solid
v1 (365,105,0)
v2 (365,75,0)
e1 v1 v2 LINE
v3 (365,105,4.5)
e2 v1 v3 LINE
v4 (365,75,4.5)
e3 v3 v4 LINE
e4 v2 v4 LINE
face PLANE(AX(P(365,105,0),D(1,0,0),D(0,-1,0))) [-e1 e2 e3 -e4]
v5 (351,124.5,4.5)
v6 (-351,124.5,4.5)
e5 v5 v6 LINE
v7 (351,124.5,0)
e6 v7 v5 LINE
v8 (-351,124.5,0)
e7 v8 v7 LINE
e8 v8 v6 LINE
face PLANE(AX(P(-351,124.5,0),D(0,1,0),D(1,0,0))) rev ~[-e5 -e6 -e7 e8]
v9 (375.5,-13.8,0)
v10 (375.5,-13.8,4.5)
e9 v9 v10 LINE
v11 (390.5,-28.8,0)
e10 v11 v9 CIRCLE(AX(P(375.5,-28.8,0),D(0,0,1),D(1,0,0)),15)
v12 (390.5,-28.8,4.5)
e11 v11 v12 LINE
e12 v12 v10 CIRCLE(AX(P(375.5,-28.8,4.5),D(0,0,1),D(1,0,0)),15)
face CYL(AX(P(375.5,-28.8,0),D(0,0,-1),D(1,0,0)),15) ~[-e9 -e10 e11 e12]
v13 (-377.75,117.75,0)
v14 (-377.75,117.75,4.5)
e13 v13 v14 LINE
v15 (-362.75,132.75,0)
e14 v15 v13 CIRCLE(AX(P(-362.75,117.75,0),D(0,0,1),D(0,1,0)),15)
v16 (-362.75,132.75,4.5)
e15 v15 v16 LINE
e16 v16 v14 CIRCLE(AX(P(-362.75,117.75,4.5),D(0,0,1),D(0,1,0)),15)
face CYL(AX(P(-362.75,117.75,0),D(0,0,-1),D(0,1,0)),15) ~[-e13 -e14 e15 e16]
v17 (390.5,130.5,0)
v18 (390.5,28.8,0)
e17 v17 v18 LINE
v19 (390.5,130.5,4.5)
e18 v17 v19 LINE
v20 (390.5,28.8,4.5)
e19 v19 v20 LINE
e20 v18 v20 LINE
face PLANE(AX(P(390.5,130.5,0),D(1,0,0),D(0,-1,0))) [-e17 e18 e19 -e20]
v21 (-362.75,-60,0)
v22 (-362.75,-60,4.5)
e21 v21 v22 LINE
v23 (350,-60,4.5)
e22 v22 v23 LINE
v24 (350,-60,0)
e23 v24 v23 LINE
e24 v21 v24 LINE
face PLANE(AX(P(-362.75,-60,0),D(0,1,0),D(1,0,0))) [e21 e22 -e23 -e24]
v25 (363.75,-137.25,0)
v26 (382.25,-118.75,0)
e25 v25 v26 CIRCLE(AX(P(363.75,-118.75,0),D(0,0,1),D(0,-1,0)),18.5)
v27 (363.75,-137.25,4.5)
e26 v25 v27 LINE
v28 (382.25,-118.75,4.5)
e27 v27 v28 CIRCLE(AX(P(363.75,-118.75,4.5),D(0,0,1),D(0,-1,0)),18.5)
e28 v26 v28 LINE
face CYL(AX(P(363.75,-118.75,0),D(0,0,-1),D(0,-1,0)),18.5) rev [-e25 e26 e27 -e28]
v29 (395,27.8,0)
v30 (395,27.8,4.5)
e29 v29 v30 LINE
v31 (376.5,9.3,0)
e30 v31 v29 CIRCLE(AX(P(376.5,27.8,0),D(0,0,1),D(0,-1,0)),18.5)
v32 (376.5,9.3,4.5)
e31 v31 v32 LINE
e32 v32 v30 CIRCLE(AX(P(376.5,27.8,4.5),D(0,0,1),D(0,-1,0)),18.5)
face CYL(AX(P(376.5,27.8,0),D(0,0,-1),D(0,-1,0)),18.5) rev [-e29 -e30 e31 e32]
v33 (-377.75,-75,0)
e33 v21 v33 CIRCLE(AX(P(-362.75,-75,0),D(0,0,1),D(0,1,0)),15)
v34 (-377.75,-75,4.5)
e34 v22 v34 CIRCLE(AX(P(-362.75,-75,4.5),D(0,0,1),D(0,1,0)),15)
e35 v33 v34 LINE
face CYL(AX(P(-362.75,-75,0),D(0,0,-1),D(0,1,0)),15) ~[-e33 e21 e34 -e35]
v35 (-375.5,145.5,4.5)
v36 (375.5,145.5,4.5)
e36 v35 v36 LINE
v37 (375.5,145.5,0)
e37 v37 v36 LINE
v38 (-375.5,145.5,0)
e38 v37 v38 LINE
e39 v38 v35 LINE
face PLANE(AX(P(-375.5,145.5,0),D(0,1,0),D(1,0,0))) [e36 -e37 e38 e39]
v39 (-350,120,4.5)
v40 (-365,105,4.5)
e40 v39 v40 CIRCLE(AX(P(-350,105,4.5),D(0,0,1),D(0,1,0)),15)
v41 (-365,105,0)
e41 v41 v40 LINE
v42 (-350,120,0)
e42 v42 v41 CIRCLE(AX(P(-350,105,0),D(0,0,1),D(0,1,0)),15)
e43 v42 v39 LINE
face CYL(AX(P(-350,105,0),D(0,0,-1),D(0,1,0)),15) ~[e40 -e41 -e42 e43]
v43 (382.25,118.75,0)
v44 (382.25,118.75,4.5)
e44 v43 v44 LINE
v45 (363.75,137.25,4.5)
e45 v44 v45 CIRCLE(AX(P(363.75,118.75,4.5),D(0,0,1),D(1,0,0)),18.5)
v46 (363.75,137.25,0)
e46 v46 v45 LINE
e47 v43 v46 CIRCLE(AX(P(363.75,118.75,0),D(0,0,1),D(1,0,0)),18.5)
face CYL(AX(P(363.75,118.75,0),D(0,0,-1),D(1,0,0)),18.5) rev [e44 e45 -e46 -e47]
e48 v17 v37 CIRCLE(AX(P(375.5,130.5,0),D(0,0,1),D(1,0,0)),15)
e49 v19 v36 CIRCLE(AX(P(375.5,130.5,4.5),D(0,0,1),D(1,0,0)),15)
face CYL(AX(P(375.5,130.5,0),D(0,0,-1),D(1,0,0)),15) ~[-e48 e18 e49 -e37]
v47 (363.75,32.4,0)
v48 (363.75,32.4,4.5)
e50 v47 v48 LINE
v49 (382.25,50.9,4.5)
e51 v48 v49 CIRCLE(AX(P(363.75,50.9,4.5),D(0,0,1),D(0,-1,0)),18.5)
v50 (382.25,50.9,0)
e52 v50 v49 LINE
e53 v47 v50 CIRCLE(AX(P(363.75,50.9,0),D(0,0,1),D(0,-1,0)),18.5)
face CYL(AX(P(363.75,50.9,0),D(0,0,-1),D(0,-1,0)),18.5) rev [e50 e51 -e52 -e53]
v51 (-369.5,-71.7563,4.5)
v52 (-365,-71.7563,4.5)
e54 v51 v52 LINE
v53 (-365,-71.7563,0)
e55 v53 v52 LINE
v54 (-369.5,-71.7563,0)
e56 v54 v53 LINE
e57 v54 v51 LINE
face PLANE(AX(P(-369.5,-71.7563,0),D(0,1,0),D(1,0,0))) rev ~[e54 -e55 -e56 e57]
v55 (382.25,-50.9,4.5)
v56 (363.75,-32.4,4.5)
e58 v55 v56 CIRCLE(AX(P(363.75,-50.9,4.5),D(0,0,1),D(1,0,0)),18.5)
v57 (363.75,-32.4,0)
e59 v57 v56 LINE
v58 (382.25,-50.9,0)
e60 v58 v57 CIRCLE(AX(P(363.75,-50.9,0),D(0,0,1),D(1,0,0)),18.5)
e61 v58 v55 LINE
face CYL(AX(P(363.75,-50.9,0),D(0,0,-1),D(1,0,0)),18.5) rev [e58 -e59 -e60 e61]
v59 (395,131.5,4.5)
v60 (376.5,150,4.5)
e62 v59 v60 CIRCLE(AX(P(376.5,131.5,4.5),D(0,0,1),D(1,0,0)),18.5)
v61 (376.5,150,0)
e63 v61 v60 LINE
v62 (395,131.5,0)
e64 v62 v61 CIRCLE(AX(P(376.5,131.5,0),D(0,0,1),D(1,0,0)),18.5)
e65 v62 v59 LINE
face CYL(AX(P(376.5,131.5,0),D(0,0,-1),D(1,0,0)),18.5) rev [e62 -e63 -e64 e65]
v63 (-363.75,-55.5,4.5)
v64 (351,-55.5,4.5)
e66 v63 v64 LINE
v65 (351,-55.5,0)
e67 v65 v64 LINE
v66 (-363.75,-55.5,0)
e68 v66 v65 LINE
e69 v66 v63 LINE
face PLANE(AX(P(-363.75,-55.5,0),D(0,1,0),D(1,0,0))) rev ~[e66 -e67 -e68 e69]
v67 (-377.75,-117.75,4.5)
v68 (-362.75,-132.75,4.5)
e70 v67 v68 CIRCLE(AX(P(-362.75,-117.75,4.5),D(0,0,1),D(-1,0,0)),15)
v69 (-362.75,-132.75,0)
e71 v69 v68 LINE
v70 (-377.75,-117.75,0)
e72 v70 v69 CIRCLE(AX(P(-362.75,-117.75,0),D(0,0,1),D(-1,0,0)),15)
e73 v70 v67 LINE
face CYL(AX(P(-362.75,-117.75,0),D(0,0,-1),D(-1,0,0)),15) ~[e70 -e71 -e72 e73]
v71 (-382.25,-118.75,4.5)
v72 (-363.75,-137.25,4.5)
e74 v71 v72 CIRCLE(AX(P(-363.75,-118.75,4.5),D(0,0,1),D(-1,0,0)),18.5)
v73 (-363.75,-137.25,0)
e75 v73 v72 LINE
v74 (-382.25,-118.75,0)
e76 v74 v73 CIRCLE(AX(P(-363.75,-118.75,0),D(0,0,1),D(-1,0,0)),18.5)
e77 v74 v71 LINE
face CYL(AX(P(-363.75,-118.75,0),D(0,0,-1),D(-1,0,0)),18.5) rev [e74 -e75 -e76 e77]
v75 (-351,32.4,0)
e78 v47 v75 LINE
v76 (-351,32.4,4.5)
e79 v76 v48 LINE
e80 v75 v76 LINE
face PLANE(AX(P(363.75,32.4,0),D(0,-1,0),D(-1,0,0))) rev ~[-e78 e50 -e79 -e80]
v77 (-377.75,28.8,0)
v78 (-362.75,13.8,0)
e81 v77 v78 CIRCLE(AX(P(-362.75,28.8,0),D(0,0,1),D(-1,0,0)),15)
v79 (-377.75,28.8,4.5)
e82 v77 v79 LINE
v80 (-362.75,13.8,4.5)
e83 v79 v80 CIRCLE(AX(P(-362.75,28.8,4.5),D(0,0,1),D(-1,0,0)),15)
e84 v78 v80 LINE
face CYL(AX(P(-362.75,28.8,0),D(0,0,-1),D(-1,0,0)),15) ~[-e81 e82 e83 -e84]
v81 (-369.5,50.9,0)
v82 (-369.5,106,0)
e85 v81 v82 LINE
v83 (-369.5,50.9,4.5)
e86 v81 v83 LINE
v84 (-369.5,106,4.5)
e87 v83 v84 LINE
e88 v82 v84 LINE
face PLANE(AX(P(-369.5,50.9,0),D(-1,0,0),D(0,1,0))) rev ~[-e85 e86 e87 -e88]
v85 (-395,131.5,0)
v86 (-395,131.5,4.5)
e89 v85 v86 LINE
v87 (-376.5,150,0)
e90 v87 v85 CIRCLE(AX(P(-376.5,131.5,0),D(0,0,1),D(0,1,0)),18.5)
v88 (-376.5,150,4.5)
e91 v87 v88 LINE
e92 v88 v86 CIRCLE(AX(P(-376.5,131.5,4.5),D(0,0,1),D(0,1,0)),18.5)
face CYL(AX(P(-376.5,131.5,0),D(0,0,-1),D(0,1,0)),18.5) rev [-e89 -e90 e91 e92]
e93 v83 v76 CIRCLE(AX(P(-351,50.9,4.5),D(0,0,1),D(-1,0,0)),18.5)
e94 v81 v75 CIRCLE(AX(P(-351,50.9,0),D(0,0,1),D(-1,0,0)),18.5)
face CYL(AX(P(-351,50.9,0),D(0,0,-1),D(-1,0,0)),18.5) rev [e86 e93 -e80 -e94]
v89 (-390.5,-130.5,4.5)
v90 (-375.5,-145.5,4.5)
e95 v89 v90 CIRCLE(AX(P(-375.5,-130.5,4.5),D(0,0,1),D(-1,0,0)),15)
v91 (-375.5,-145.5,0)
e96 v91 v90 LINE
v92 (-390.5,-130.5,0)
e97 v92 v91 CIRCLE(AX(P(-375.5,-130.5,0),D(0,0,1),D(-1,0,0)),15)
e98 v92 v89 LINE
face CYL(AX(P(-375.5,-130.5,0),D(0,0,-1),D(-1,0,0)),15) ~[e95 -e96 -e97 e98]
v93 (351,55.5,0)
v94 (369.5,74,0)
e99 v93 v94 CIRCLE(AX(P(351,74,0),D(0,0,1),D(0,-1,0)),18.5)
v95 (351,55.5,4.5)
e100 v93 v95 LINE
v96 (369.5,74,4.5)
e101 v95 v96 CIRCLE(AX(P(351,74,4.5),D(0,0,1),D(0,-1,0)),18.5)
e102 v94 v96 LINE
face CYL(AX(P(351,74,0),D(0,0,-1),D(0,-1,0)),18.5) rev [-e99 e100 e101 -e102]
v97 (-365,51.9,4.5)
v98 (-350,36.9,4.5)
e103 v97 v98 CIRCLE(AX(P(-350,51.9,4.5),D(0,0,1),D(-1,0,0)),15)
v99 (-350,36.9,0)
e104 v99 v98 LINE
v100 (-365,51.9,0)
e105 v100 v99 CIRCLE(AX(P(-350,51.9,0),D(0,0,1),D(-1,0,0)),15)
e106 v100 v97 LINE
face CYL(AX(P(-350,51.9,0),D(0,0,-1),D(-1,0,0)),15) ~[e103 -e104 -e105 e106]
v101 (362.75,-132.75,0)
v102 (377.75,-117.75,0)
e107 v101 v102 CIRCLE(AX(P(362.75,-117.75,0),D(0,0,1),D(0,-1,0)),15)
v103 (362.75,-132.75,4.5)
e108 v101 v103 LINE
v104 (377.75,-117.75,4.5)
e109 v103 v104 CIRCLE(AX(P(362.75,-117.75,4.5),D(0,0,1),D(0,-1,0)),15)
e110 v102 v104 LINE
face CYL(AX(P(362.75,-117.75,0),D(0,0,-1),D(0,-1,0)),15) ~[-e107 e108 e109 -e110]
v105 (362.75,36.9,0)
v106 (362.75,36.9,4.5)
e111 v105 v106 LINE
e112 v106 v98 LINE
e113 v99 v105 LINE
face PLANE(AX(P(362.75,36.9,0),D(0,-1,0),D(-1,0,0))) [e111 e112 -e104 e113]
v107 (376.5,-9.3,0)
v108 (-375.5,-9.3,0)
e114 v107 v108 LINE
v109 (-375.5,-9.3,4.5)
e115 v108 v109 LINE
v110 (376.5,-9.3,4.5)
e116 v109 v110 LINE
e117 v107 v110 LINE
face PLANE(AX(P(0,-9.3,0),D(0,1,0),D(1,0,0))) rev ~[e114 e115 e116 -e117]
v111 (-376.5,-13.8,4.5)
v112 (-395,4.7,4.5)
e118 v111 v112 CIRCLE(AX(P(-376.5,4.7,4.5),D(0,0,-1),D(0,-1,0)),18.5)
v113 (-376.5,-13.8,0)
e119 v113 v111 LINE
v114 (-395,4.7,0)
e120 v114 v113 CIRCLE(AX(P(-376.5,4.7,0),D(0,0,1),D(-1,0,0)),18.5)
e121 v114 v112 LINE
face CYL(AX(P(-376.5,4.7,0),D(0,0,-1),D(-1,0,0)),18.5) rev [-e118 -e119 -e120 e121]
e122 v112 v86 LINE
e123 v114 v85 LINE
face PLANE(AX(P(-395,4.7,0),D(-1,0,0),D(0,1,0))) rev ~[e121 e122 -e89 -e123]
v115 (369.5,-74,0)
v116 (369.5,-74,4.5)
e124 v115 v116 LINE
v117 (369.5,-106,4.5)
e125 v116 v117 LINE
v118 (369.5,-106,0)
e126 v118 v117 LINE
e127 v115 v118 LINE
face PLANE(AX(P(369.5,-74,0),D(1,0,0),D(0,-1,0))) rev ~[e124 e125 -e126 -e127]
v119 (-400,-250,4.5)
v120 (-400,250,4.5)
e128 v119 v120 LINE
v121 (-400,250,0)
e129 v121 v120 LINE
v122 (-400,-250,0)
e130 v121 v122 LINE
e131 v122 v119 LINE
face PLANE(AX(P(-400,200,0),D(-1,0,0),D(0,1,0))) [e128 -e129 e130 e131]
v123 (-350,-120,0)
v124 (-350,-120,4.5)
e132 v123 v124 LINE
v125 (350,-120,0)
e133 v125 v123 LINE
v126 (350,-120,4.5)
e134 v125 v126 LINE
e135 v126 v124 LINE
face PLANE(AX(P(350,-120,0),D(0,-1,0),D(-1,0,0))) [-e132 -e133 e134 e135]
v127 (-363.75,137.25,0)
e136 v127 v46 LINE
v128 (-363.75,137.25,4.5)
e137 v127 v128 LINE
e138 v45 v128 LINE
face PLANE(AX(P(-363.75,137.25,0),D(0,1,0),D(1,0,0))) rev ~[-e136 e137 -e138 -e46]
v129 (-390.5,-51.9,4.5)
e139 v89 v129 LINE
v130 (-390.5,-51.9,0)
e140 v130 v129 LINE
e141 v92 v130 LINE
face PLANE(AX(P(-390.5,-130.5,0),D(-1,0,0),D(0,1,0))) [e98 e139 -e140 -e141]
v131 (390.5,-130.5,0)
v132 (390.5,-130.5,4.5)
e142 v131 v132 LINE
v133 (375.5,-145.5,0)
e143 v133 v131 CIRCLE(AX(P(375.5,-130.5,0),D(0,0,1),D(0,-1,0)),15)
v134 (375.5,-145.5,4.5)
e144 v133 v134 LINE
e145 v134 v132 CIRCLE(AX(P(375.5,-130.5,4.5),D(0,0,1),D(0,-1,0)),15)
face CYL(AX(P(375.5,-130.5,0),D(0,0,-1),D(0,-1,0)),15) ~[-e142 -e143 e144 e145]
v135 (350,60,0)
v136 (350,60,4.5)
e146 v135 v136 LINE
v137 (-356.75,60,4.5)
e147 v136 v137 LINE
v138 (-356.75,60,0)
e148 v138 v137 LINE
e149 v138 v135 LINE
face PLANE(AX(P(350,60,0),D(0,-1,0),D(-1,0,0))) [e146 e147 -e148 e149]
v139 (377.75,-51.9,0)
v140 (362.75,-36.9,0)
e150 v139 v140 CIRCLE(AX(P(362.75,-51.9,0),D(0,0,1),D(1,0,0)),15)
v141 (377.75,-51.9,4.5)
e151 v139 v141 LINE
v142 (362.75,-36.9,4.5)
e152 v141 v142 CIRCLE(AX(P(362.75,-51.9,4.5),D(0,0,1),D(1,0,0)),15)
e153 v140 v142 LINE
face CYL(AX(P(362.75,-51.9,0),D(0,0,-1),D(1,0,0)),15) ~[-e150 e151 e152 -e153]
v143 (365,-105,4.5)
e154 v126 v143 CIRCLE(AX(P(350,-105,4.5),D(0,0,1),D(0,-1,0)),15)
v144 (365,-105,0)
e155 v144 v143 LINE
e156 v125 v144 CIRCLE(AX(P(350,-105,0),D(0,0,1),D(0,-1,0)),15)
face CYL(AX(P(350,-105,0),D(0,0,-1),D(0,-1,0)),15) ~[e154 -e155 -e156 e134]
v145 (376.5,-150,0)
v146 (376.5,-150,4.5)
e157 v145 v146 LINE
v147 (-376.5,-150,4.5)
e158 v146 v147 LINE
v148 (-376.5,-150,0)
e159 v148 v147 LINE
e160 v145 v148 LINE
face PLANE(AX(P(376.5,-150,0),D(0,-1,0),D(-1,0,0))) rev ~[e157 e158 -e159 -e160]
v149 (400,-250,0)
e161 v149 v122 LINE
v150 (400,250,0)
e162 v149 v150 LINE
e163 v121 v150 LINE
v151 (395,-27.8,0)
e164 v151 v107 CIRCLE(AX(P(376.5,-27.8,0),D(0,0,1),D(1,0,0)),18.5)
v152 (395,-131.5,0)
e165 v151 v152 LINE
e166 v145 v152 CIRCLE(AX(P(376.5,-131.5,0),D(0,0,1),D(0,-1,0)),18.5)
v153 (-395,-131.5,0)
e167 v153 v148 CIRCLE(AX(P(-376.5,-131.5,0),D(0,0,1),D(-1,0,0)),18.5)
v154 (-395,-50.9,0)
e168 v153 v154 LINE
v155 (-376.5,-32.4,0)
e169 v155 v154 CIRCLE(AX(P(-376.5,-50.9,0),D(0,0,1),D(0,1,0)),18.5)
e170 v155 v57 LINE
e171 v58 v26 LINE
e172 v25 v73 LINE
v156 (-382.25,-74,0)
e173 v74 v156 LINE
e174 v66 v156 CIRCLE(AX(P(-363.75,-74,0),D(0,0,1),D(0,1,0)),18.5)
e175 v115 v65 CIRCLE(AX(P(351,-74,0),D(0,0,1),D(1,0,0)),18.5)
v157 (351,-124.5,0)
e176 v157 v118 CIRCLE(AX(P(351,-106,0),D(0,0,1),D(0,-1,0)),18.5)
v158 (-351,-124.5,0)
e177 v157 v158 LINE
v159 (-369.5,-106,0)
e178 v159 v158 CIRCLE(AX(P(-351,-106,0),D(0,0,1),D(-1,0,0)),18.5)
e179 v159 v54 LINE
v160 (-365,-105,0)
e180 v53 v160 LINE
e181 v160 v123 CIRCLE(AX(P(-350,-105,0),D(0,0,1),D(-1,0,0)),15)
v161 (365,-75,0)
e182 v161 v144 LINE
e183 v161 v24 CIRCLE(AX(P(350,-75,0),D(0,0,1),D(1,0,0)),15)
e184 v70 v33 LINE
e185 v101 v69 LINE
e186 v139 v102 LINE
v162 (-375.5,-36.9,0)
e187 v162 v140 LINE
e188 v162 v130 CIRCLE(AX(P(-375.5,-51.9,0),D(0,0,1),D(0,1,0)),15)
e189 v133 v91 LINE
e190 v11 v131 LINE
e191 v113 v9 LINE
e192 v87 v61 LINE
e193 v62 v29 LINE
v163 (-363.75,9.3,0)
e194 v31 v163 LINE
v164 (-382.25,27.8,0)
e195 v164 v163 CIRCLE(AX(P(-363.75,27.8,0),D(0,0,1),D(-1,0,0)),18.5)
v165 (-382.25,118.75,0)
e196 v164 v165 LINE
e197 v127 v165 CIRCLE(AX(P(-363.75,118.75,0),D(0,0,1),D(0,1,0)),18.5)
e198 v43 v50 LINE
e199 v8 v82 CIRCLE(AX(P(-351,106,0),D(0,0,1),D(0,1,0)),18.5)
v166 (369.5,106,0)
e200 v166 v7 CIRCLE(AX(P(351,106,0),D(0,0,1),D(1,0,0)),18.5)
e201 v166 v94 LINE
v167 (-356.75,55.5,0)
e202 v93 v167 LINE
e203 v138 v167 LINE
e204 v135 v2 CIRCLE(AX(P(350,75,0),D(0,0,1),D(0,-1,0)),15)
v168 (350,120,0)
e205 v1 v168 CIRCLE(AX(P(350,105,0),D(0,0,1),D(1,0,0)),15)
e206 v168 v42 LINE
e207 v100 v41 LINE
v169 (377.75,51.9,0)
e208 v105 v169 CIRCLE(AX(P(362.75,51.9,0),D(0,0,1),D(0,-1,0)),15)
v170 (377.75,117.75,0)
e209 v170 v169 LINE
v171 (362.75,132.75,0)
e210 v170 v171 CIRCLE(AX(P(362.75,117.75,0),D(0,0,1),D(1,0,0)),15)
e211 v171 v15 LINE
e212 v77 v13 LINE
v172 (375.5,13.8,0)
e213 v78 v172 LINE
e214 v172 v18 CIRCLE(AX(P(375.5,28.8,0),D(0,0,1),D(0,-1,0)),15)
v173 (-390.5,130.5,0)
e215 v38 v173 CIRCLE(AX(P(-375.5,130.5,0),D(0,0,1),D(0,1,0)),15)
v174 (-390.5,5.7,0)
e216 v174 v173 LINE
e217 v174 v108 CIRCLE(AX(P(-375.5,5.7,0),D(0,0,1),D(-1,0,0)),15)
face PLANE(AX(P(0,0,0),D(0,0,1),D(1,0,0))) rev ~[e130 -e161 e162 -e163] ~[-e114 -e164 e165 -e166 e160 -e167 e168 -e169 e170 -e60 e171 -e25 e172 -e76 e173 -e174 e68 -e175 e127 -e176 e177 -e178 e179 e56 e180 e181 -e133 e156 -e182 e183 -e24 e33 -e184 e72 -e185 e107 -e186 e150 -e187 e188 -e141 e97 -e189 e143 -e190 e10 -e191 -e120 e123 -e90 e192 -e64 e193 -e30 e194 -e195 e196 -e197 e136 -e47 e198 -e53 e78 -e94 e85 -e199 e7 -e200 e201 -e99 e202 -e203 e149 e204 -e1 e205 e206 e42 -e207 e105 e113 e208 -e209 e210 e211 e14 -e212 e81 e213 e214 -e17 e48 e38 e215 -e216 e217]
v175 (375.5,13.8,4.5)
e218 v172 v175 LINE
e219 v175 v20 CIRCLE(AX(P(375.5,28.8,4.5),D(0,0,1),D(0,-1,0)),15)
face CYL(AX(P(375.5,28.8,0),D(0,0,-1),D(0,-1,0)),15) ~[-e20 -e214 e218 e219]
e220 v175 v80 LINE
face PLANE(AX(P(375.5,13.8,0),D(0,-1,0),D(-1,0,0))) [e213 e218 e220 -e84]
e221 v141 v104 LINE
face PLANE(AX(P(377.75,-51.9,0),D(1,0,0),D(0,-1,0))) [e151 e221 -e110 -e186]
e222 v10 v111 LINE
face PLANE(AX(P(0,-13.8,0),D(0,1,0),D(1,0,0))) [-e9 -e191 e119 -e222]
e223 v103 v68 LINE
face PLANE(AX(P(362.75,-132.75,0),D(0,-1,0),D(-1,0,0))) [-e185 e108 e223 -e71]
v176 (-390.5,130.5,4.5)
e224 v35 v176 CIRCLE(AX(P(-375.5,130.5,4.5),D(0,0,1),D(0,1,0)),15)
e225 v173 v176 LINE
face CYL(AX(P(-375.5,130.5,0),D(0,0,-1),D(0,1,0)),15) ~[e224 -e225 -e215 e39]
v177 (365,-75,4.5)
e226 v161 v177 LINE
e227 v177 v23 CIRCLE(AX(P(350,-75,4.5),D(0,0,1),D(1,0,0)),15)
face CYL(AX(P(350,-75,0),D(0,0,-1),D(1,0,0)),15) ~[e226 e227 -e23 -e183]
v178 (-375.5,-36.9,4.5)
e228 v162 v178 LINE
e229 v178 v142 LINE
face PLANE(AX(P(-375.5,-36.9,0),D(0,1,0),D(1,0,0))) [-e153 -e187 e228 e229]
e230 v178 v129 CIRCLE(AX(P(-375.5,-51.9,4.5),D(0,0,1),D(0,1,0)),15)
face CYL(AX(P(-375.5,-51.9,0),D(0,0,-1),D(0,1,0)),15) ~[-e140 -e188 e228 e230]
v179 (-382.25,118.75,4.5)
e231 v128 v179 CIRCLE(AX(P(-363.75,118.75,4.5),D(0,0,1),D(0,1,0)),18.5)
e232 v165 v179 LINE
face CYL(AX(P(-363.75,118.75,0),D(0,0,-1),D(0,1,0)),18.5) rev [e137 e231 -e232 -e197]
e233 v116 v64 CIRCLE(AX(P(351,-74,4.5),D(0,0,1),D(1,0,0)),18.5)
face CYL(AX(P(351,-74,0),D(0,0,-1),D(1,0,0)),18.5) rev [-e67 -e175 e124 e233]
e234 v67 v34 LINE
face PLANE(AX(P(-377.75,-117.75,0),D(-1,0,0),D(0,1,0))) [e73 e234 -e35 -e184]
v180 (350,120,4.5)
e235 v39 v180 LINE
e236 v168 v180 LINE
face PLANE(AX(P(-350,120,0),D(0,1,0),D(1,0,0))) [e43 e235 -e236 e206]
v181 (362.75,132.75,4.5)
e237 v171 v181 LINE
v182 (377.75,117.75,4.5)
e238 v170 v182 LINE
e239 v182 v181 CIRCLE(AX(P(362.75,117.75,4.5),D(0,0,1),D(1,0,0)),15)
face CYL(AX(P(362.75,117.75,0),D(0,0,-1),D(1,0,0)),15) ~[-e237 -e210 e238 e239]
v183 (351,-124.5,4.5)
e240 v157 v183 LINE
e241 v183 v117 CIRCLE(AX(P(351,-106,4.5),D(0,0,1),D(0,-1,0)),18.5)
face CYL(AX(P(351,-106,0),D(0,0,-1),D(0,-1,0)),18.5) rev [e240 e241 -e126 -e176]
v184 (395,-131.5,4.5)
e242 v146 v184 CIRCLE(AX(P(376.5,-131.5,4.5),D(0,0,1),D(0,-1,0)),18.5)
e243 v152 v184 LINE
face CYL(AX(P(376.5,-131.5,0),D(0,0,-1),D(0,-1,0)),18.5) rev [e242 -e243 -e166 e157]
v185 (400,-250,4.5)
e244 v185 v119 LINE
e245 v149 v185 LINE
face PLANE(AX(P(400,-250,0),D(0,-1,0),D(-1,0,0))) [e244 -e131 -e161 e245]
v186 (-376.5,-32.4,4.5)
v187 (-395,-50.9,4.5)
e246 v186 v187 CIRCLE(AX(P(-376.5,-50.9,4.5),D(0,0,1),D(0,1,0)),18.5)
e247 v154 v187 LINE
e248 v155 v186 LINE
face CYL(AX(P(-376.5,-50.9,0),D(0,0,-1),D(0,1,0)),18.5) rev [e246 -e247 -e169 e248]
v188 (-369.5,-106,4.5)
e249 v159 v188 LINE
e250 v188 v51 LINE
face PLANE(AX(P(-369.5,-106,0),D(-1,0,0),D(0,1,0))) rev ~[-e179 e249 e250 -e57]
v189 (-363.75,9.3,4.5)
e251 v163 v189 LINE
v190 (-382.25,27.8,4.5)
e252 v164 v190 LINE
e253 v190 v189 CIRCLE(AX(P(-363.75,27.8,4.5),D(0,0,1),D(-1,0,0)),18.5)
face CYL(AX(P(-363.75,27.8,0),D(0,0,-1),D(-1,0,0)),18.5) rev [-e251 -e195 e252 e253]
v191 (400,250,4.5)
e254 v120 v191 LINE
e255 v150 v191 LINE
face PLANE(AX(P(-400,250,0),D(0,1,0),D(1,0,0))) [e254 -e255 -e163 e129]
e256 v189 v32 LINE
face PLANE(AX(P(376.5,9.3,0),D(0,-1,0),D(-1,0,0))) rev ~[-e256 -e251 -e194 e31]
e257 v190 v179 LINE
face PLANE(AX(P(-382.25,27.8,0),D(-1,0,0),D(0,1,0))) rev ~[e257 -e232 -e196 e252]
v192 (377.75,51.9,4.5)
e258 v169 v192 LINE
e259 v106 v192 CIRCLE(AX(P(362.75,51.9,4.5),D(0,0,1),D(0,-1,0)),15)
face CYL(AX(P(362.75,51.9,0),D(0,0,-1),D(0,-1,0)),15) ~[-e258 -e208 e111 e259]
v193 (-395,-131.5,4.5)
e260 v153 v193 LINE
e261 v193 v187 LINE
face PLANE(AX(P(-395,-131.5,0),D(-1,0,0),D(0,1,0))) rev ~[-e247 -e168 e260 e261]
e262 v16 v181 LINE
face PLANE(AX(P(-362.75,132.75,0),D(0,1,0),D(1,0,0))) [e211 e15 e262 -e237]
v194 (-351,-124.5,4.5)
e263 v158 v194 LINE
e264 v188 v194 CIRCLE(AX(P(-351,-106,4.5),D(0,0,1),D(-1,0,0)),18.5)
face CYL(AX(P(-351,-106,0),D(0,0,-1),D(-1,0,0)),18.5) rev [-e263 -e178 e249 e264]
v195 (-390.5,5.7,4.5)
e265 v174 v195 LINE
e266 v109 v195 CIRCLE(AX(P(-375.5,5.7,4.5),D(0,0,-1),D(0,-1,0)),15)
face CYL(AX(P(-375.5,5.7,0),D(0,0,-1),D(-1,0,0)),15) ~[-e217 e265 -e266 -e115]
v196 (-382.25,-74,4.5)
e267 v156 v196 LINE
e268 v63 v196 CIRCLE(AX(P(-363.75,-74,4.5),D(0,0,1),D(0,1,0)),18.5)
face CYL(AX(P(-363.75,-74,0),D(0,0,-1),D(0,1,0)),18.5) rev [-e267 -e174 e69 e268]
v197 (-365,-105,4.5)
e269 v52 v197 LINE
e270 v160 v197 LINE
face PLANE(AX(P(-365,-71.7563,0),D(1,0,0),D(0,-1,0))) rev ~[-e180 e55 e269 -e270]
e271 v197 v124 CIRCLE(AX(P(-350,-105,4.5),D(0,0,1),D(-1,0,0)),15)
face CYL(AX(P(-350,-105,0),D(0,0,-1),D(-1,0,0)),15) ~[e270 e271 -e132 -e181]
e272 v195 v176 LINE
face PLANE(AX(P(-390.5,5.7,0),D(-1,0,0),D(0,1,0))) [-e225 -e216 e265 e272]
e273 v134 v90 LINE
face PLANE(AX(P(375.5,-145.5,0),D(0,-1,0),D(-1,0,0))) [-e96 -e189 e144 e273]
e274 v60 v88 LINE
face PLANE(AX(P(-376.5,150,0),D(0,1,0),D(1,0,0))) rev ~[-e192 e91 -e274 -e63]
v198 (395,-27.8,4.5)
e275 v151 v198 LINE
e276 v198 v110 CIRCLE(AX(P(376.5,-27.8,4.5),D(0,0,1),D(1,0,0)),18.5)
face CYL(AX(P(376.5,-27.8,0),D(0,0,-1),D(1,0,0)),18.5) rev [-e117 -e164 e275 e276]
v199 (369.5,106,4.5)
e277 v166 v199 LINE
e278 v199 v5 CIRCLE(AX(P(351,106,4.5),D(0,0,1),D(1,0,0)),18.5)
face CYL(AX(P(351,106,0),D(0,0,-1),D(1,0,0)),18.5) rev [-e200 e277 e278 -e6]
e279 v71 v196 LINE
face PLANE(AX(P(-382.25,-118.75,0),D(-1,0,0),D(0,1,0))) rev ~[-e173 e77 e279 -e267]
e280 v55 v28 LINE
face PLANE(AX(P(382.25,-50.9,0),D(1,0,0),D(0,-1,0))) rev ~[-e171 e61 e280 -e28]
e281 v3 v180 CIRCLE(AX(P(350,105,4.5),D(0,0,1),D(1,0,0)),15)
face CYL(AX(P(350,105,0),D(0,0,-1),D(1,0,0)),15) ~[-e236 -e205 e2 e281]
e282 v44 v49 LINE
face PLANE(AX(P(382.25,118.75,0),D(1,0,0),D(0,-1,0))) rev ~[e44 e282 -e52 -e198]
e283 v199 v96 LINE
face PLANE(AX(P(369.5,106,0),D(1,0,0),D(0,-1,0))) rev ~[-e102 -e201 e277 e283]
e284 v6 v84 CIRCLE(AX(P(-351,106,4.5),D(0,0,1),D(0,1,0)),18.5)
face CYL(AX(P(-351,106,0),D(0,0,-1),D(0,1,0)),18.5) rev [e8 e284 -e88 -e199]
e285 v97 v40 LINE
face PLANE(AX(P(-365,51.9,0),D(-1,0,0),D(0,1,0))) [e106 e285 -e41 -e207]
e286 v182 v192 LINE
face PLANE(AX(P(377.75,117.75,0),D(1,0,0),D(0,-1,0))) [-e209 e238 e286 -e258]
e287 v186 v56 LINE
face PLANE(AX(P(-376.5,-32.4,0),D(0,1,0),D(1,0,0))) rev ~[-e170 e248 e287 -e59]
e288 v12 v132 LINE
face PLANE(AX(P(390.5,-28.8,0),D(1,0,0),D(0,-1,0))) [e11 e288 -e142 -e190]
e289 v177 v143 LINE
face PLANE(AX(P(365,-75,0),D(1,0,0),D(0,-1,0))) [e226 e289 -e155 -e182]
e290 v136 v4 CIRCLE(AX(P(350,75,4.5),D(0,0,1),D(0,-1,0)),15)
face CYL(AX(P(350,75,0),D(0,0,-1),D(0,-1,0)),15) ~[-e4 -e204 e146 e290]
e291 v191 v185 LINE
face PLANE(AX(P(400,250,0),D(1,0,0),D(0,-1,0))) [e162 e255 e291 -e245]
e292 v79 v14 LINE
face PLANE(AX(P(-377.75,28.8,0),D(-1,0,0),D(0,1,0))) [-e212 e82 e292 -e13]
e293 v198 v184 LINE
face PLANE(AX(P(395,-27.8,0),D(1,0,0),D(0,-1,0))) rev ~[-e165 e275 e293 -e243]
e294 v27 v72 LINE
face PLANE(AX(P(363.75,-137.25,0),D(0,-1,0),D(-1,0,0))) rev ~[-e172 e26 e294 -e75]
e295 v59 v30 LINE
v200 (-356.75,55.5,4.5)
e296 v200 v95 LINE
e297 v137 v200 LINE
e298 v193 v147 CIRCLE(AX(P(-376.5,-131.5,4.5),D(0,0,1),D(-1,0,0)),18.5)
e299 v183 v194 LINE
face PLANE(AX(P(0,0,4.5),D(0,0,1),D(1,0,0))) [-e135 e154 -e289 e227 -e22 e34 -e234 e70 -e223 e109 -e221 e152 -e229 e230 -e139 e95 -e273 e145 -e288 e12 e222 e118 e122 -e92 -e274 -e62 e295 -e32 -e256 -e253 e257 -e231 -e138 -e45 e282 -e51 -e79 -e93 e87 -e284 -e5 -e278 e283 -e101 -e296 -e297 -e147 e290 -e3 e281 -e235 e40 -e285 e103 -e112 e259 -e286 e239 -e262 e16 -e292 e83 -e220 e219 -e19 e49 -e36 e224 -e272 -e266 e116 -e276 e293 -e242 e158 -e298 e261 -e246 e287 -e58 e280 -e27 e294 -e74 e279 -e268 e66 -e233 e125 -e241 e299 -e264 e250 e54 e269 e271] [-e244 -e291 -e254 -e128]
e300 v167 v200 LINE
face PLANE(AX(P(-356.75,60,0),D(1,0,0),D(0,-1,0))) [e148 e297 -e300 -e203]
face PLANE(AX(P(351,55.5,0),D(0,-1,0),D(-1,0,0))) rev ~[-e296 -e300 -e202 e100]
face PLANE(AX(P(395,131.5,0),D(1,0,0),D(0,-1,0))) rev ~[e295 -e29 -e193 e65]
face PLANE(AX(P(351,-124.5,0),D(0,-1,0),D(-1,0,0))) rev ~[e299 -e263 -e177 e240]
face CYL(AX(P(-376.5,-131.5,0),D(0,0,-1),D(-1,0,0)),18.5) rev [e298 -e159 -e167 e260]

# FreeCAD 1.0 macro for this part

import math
import FreeCAD as App
import Part
import Sketcher


def add_polygon(sketch, points):
    """Adds a closed chain of lines whose ends are joined by coincident constraints."""
    first, n = sketch.GeometryCount, len(points)
    for a, b in zip(points, points[1:] + points[:1]):
        sketch.addGeometry(Part.LineSegment(App.Vector(*a, 0), App.Vector(*b, 0)), False)
    for i in range(n):
        sketch.addConstraint(Sketcher.Constraint("Coincident", first + i, 2, first + (i + 1) % n, 1))

doc = App.newDocument("Part")
body = doc.addObject("PartDesign::Body", "Body")

# Sketch on XY plane
sketch1 = body.newObject("Sketcher::SketchObject", "Sketch")
sketch1.AttachmentSupport = (doc.getObject("XY_Plane"), [""])
sketch1.MapMode = "FlatFace"
add_polygon(sketch1, [(400, 250), (-400, 250), (-400, -250), (400, -250)])  # lines 0-3
sketch1.addConstraint([
    Sketcher.Constraint("Horizontal", 0),
    Sketcher.Constraint("Vertical", 1),
    Sketcher.Constraint("Horizontal", 2),
    Sketcher.Constraint("Vertical", 3),
    Sketcher.Constraint("Symmetric", 0, 2, 2, 2, -1, 1),
    Sketcher.Constraint("DistanceX", 0, 2, 0, 1, 800.0),
    Sketcher.Constraint("DistanceY", 1, 2, 1, 1, 500.0),
])
pad1 = body.newObject("PartDesign::Pad", "Pad")
pad1.Profile = sketch1
pad1.Length = 4.5

# Sketch on XY plane
sketch2 = body.newObject("Sketcher::SketchObject", "Sketch001")
sketch2.AttachmentSupport = (doc.getObject("XY_Plane"), [""])
sketch2.MapMode = "FlatFace"
sketch2.addGeometry([
    Part.LineSegment(App.Vector(-376.5, -13.8, 0), App.Vector(0, -13.8, 0)),  # 0
    Part.LineSegment(App.Vector(0, -13.8, 0), App.Vector(0, -9.3, 0)),  # 1
    Part.LineSegment(App.Vector(0, -9.3, 0), App.Vector(-375.5, -9.3, 0)),  # 2
    Part.ArcOfCircle(Part.Circle(App.Vector(-375.5, 5.7, 0), App.Vector(0, 0, 1), 15), math.radians(180), math.radians(270)),  # 3
    Part.LineSegment(App.Vector(-390.5, 5.7, 0), App.Vector(-390.5, 130.5, 0)),  # 4
    Part.ArcOfCircle(Part.Circle(App.Vector(-375.5, 130.5, 0), App.Vector(0, 0, 1), 15), math.radians(90), math.radians(180)),  # 5
    Part.LineSegment(App.Vector(-375.5, 145.5, 0), App.Vector(375.5, 145.5, 0)),  # 6
    Part.ArcOfCircle(Part.Circle(App.Vector(375.5, 130.5, 0), App.Vector(0, 0, 1), 15), math.radians(0), math.radians(90)),  # 7
    Part.LineSegment(App.Vector(390.5, 130.5, 0), App.Vector(390.5, 28.8, 0)),  # 8
    Part.ArcOfCircle(Part.Circle(App.Vector(375.5, 28.8, 0), App.Vector(0, 0, 1), 15), math.radians(-90), math.radians(0)),  # 9
    Part.LineSegment(App.Vector(375.5, 13.8, 0), App.Vector(-362.8, 13.8, 0)),  # 10
    Part.ArcOfCircle(Part.Circle(App.Vector(-362.8, 28.8, 0), App.Vector(0, 0, 1), 15), math.radians(180), math.radians(270)),  # 11
    Part.LineSegment(App.Vector(-377.8, 28.8, 0), App.Vector(-377.8, 117.8, 0)),  # 12
    Part.ArcOfCircle(Part.Circle(App.Vector(-362.8, 117.8, 0), App.Vector(0, 0, 1), 15), math.radians(90), math.radians(180)),  # 13
    Part.LineSegment(App.Vector(-362.8, 132.8, 0), App.Vector(362.8, 132.8, 0)),  # 14
    Part.ArcOfCircle(Part.Circle(App.Vector(362.8, 117.8, 0), App.Vector(0, 0, 1), 15), math.radians(0), math.radians(90)),  # 15
    Part.LineSegment(App.Vector(377.8, 117.8, 0), App.Vector(377.8, 51.9, 0)),  # 16
    Part.ArcOfCircle(Part.Circle(App.Vector(362.8, 51.9, 0), App.Vector(0, 0, 1), 15), math.radians(-90), math.radians(0)),  # 17
    Part.LineSegment(App.Vector(362.8, 36.9, 0), App.Vector(-350, 36.9, 0)),  # 18
    Part.ArcOfCircle(Part.Circle(App.Vector(-350, 51.9, 0), App.Vector(0, 0, 1), 15), math.radians(180), math.radians(270)),  # 19
    Part.LineSegment(App.Vector(-365, 51.9, 0), App.Vector(-365, 105, 0)),  # 20
    Part.ArcOfCircle(Part.Circle(App.Vector(-350, 105, 0), App.Vector(0, 0, 1), 15), math.radians(90), math.radians(180)),  # 21
    Part.LineSegment(App.Vector(-350, 120, 0), App.Vector(350, 120, 0)),  # 22
    Part.ArcOfCircle(Part.Circle(App.Vector(350, 105, 0), App.Vector(0, 0, 1), 15), math.radians(0), math.radians(90)),  # 23
    Part.LineSegment(App.Vector(365, 105, 0), App.Vector(365, 75, 0)),  # 24
    Part.ArcOfCircle(Part.Circle(App.Vector(350, 75, 0), App.Vector(0, 0, 1), 15), math.radians(-90), math.radians(0)),  # 25
    Part.LineSegment(App.Vector(350, 60, 0), App.Vector(-356.8, 60, 0)),  # 26
    Part.LineSegment(App.Vector(-356.8, 60, 0), App.Vector(-356.8, 55.5, 0)),  # 27
    Part.LineSegment(App.Vector(-356.8, 55.5, 0), App.Vector(351, 55.5, 0)),  # 28
    Part.ArcOfCircle(Part.Circle(App.Vector(351, 74, 0), App.Vector(0, 0, 1), 18.5), math.radians(-90), math.radians(0)),  # 29
    Part.LineSegment(App.Vector(369.5, 74, 0), App.Vector(369.5, 106, 0)),  # 30
    Part.ArcOfCircle(Part.Circle(App.Vector(351, 106, 0), App.Vector(0, 0, 1), 18.5), math.radians(0), math.radians(90)),  # 31
    Part.LineSegment(App.Vector(351, 124.5, 0), App.Vector(-351, 124.5, 0)),  # 32
    Part.ArcOfCircle(Part.Circle(App.Vector(-351, 106, 0), App.Vector(0, 0, 1), 18.5), math.radians(90), math.radians(180)),  # 33
    Part.LineSegment(App.Vector(-369.5, 106, 0), App.Vector(-369.5, 50.9, 0)),  # 34
    Part.ArcOfCircle(Part.Circle(App.Vector(-351, 50.9, 0), App.Vector(0, 0, 1), 18.5), math.radians(180), math.radians(270)),  # 35
    Part.LineSegment(App.Vector(-351, 32.4, 0), App.Vector(363.8, 32.4, 0)),  # 36
    Part.ArcOfCircle(Part.Circle(App.Vector(363.8, 50.9, 0), App.Vector(0, 0, 1), 18.5), math.radians(-90), math.radians(0)),  # 37
    Part.LineSegment(App.Vector(382.2, 50.9, 0), App.Vector(382.2, 118.8, 0)),  # 38
    Part.ArcOfCircle(Part.Circle(App.Vector(363.8, 118.8, 0), App.Vector(0, 0, 1), 18.5), math.radians(0), math.radians(90)),  # 39
    Part.LineSegment(App.Vector(363.8, 137.2, 0), App.Vector(-363.8, 137.2, 0)),  # 40
    Part.ArcOfCircle(Part.Circle(App.Vector(-363.8, 118.8, 0), App.Vector(0, 0, 1), 18.5), math.radians(90), math.radians(180)),  # 41
    Part.LineSegment(App.Vector(-382.2, 118.8, 0), App.Vector(-382.2, 27.8, 0)),  # 42
    Part.ArcOfCircle(Part.Circle(App.Vector(-363.8, 27.8, 0), App.Vector(0, 0, 1), 18.5), math.radians(180), math.radians(270)),  # 43
    Part.LineSegment(App.Vector(-363.8, 9.3, 0), App.Vector(376.5, 9.3, 0)),  # 44
    Part.ArcOfCircle(Part.Circle(App.Vector(376.5, 27.8, 0), App.Vector(0, 0, 1), 18.5), math.radians(-90), math.radians(0)),  # 45
    Part.LineSegment(App.Vector(395, 27.8, 0), App.Vector(395, 131.5, 0)),  # 46
    Part.ArcOfCircle(Part.Circle(App.Vector(376.5, 131.5, 0), App.Vector(0, 0, 1), 18.5), math.radians(0), math.radians(90)),  # 47
    Part.LineSegment(App.Vector(376.5, 150, 0), App.Vector(-376.5, 150, 0)),  # 48
    Part.ArcOfCircle(Part.Circle(App.Vector(-376.5, 131.5, 0), App.Vector(0, 0, 1), 18.5), math.radians(90), math.radians(180)),  # 49
    Part.LineSegment(App.Vector(-395, 131.5, 0), App.Vector(-395, 4.7, 0)),  # 50
    Part.ArcOfCircle(Part.Circle(App.Vector(-376.5, 4.7, 0), App.Vector(0, 0, 1), 18.5), math.radians(180), math.radians(270)),  # 51
], False)
sketch2.addConstraint([
    Sketcher.Constraint("Coincident", 0, 2, 1, 1),
    Sketcher.Constraint("Coincident", 1, 2, 2, 1),
    Sketcher.Constraint("Tangent", 2, 2, 3, 2),
    Sketcher.Constraint("Tangent", 3, 1, 4, 1),
    Sketcher.Constraint("Tangent", 4, 2, 5, 2),
    Sketcher.Constraint("Tangent", 5, 1, 6, 1),
    Sketcher.Constraint("Tangent", 6, 2, 7, 2),
    Sketcher.Constraint("Tangent", 7, 1, 8, 1),
    Sketcher.Constraint("Tangent", 8, 2, 9, 2),
    Sketcher.Constraint("Tangent", 9, 1, 10, 1),
    Sketcher.Constraint("Tangent", 10, 2, 11, 2),
    Sketcher.Constraint("Tangent", 11, 1, 12, 1),
    Sketcher.Constraint("Tangent", 12, 2, 13, 2),
    Sketcher.Constraint("Tangent", 13, 1, 14, 1),
    Sketcher.Constraint("Tangent", 14, 2, 15, 2),
    Sketcher.Constraint("Tangent", 15, 1, 16, 1),
    Sketcher.Constraint("Tangent", 16, 2, 17, 2),
    Sketcher.Constraint("Tangent", 17, 1, 18, 1),
    Sketcher.Constraint("Tangent", 18, 2, 19, 2),
    Sketcher.Constraint("Tangent", 19, 1, 20, 1),
    Sketcher.Constraint("Tangent", 20, 2, 21, 2),
    Sketcher.Constraint("Tangent", 21, 1, 22, 1),
    Sketcher.Constraint("Tangent", 22, 2, 23, 2),
    Sketcher.Constraint("Tangent", 23, 1, 24, 1),
    Sketcher.Constraint("Tangent", 24, 2, 25, 2),
    Sketcher.Constraint("Tangent", 25, 1, 26, 1),
    Sketcher.Constraint("Coincident", 26, 2, 27, 1),
    Sketcher.Constraint("Coincident", 27, 2, 28, 1),
    Sketcher.Constraint("Tangent", 28, 2, 29, 1),
    Sketcher.Constraint("Tangent", 29, 2, 30, 1),
    Sketcher.Constraint("Tangent", 30, 2, 31, 1),
    Sketcher.Constraint("Tangent", 31, 2, 32, 1),
    Sketcher.Constraint("Tangent", 32, 2, 33, 1),
    Sketcher.Constraint("Tangent", 33, 2, 34, 1),
    Sketcher.Constraint("Tangent", 34, 2, 35, 1),
    Sketcher.Constraint("Tangent", 35, 2, 36, 1),
    Sketcher.Constraint("Tangent", 36, 2, 37, 1),
    Sketcher.Constraint("Tangent", 37, 2, 38, 1),
    Sketcher.Constraint("Tangent", 38, 2, 39, 1),
    Sketcher.Constraint("Tangent", 39, 2, 40, 1),
    Sketcher.Constraint("Tangent", 40, 2, 41, 1),
    Sketcher.Constraint("Tangent", 41, 2, 42, 1),
    Sketcher.Constraint("Tangent", 42, 2, 43, 1),
    Sketcher.Constraint("Tangent", 43, 2, 44, 1),
    Sketcher.Constraint("Tangent", 44, 2, 45, 1),
    Sketcher.Constraint("Tangent", 45, 2, 46, 1),
    Sketcher.Constraint("Tangent", 46, 2, 47, 1),
    Sketcher.Constraint("Tangent", 47, 2, 48, 1),
    Sketcher.Constraint("Tangent", 48, 2, 49, 1),
    Sketcher.Constraint("Tangent", 49, 2, 50, 1),
    Sketcher.Constraint("Tangent", 50, 2, 51, 1),
    Sketcher.Constraint("Tangent", 51, 2, 0, 1),
    Sketcher.Constraint("Horizontal", 0),
    Sketcher.Constraint("Vertical", 1),
    Sketcher.Constraint("Horizontal", 2),
    Sketcher.Constraint("Vertical", 4),
    Sketcher.Constraint("Horizontal", 6),
    Sketcher.Constraint("Vertical", 8),
    Sketcher.Constraint("Horizontal", 10),
    Sketcher.Constraint("Vertical", 12),
    Sketcher.Constraint("Horizontal", 14),
    Sketcher.Constraint("Vertical", 16),
    Sketcher.Constraint("Horizontal", 18),
    Sketcher.Constraint("Vertical", 20),
    Sketcher.Constraint("Horizontal", 22),
    Sketcher.Constraint("Vertical", 24),
    Sketcher.Constraint("Horizontal", 26),
    Sketcher.Constraint("Vertical", 27),
    Sketcher.Constraint("Horizontal", 28),
    Sketcher.Constraint("Vertical", 30),
    Sketcher.Constraint("Horizontal", 32),
    Sketcher.Constraint("Vertical", 34),
    Sketcher.Constraint("Horizontal", 36),
    Sketcher.Constraint("Vertical", 38),
    Sketcher.Constraint("Horizontal", 40),
    Sketcher.Constraint("Vertical", 42),
    Sketcher.Constraint("Horizontal", 44),
    Sketcher.Constraint("Vertical", 46),
    Sketcher.Constraint("Horizontal", 48),
    Sketcher.Constraint("Vertical", 50),
    Sketcher.Constraint("Equal", 3, 5),
    Sketcher.Constraint("Equal", 5, 7),
    Sketcher.Constraint("Equal", 7, 9),
    Sketcher.Constraint("Equal", 9, 11),
    Sketcher.Constraint("Equal", 11, 13),
    Sketcher.Constraint("Equal", 13, 15),
    Sketcher.Constraint("Equal", 15, 17),
    Sketcher.Constraint("Equal", 17, 19),
    Sketcher.Constraint("Equal", 19, 21),
    Sketcher.Constraint("Equal", 21, 23),
    Sketcher.Constraint("Equal", 23, 25),
    Sketcher.Constraint("Equal", 29, 31),
    Sketcher.Constraint("Equal", 31, 33),
    Sketcher.Constraint("Equal", 33, 35),
    Sketcher.Constraint("Equal", 35, 37),
    Sketcher.Constraint("Equal", 37, 39),
    Sketcher.Constraint("Equal", 39, 41),
    Sketcher.Constraint("Equal", 41, 43),
    Sketcher.Constraint("Equal", 43, 45),
    Sketcher.Constraint("Equal", 45, 47),
    Sketcher.Constraint("Equal", 47, 49),
    Sketcher.Constraint("Equal", 49, 51),
    Sketcher.Constraint("PointOnObject", 0, 2, -2),
    Sketcher.Constraint("Equal", 1, 27),
    Sketcher.Constraint("Radius", 3, 15.0),
    Sketcher.Constraint("Radius", 29, 18.5),
    Sketcher.Constraint("DistanceY", 1, 1, 1, 2, 4.5),
    Sketcher.Constraint("DistanceY", -1, 1, 47, 2, 150.0),
    Sketcher.Constraint("DistanceY", 1, 2, -1, 1, 9.3),
    Sketcher.Constraint("DistanceY", -1, 1, 43, 2, 9.3),
    Sketcher.Constraint("DistanceX", 6, 1, 6, 2, 751.0),
    Sketcher.Constraint("DistanceX", 22, 1, 22, 2, 700.0),
    Sketcher.Constraint("DistanceX", 32, 2, 32, 1, 702.0),
    Sketcher.Constraint("DistanceX", 48, 2, 48, 1, 753.0),
    Sketcher.Constraint("DistanceY", 24, 2, 24, 1, 30.0),
    Sketcher.Constraint("DistanceY", 30, 1, 30, 2, 32.0),
    Sketcher.Constraint("DistanceX", 0, 1, 0, 2, 376.5),
    Sketcher.Constraint("DistanceX", 2, 2, 2, 1, 375.5),
    Sketcher.Constraint("DistanceX", 14, 1, 14, 2, 725.5),
    Sketcher.Constraint("DistanceX", 40, 2, 40, 1, 727.5),
    Sketcher.Constraint("DistanceY", 4, 1, 4, 2, 124.8),
    Sketcher.Constraint("DistanceY", 8, 2, 8, 1, 101.7),
    Sketcher.Constraint("DistanceY", 20, 1, 20, 2, 53.1),
    Sketcher.Constraint("DistanceY", 34, 2, 34, 1, 55.1),
    Sketcher.Constraint("DistanceX", 19, 3, -1, 1, 350.0),
    Sketcher.Constraint("DistanceY", -1, 1, 21, 3, 105.0),
    Sketcher.Constraint("DistanceX", -1, 1, 29, 3, 351.0),
    Sketcher.Constraint("DistanceX", 10, 2, 10, 1, 738.25),
    Sketcher.Constraint("DistanceX", 26, 2, 26, 1, 706.75),
    Sketcher.Constraint("DistanceX", 36, 1, 36, 2, 714.75),
    Sketcher.Constraint("DistanceY", 12, 1, 12, 2, 88.95),
    Sketcher.Constraint("DistanceY", 38, 1, 38, 2, 67.85),
])
pocket1 = body.newObject("PartDesign::Pocket", "Pocket")
pocket1.Profile = sketch2
pocket1.Length = 4.5
pocket1.Reversed = True

# Sketch on XY plane
sketch3 = body.newObject("Sketcher::SketchObject", "Sketch002")
sketch3.AttachmentSupport = (doc.getObject("XY_Plane"), [""])
sketch3.MapMode = "FlatFace"
sketch3.addGeometry([
    Part.LineSegment(App.Vector(376.5, -9.3, 0), App.Vector(0, -9.3, 0)),  # 0
    Part.LineSegment(App.Vector(0, -9.3, 0), App.Vector(0, -13.8, 0)),  # 1
    Part.LineSegment(App.Vector(0, -13.8, 0), App.Vector(375.5, -13.8, 0)),  # 2
    Part.ArcOfCircle(Part.Circle(App.Vector(375.5, -28.8, 0), App.Vector(0, 0, 1), 15), math.radians(0), math.radians(90)),  # 3
    Part.LineSegment(App.Vector(390.5, -28.8, 0), App.Vector(390.5, -130.5, 0)),  # 4
    Part.ArcOfCircle(Part.Circle(App.Vector(375.5, -130.5, 0), App.Vector(0, 0, 1), 15), math.radians(-90), math.radians(0)),  # 5
    Part.LineSegment(App.Vector(375.5, -145.5, 0), App.Vector(-375.5, -145.5, 0)),  # 6
    Part.ArcOfCircle(Part.Circle(App.Vector(-375.5, -130.5, 0), App.Vector(0, 0, 1), 15), math.radians(180), math.radians(270)),  # 7
    Part.LineSegment(App.Vector(-390.5, -130.5, 0), App.Vector(-390.5, -51.9, 0)),  # 8
    Part.ArcOfCircle(Part.Circle(App.Vector(-375.5, -51.9, 0), App.Vector(0, 0, 1), 15), math.radians(90), math.radians(180)),  # 9
    Part.LineSegment(App.Vector(-375.5, -36.9, 0), App.Vector(362.8, -36.9, 0)),  # 10
    Part.ArcOfCircle(Part.Circle(App.Vector(362.8, -51.9, 0), App.Vector(0, 0, 1), 15), math.radians(0), math.radians(90)),  # 11
    Part.LineSegment(App.Vector(377.8, -51.9, 0), App.Vector(377.8, -117.8, 0)),  # 12
    Part.ArcOfCircle(Part.Circle(App.Vector(362.8, -117.8, 0), App.Vector(0, 0, 1), 15), math.radians(-90), math.radians(0)),  # 13
    Part.LineSegment(App.Vector(362.8, -132.8, 0), App.Vector(-362.8, -132.8, 0)),  # 14
    Part.ArcOfCircle(Part.Circle(App.Vector(-362.8, -117.8, 0), App.Vector(0, 0, 1), 15), math.radians(180), math.radians(270)),  # 15
    Part.LineSegment(App.Vector(-377.8, -117.8, 0), App.Vector(-377.8, -75, 0)),  # 16
    Part.ArcOfCircle(Part.Circle(App.Vector(-362.8, -75, 0), App.Vector(0, 0, 1), 15), math.radians(90), math.radians(180)),  # 17
    Part.LineSegment(App.Vector(-362.8, -60, 0), App.Vector(350, -60, 0)),  # 18
    Part.ArcOfCircle(Part.Circle(App.Vector(350, -75, 0), App.Vector(0, 0, 1), 15), math.radians(0), math.radians(90)),  # 19
    Part.LineSegment(App.Vector(365, -75, 0), App.Vector(365, -105, 0)),  # 20
    Part.ArcOfCircle(Part.Circle(App.Vector(350, -105, 0), App.Vector(0, 0, 1), 15), math.radians(-90), math.radians(0)),  # 21
    Part.LineSegment(App.Vector(350, -120, 0), App.Vector(-350, -120, 0)),  # 22
    Part.ArcOfCircle(Part.Circle(App.Vector(-350, -105, 0), App.Vector(0, 0, 1), 15), math.radians(180), math.radians(270)),  # 23
    Part.LineSegment(App.Vector(-365, -105, 0), App.Vector(-365, -71.8, 0)),  # 24
    Part.LineSegment(App.Vector(-365, -71.8, 0), App.Vector(-369.5, -71.8, 0)),  # 25
    Part.LineSegment(App.Vector(-369.5, -71.8, 0), App.Vector(-369.5, -106, 0)),  # 26
    Part.ArcOfCircle(Part.Circle(App.Vector(-351, -106, 0), App.Vector(0, 0, 1), 18.5), math.radians(180), math.radians(270)),  # 27
    Part.LineSegment(App.Vector(-351, -124.5, 0), App.Vector(351, -124.5, 0)),  # 28
    Part.ArcOfCircle(Part.Circle(App.Vector(351, -106, 0), App.Vector(0, 0, 1), 18.5), math.radians(-90), math.radians(0)),  # 29
    Part.LineSegment(App.Vector(369.5, -106, 0), App.Vector(369.5, -74, 0)),  # 30
    Part.ArcOfCircle(Part.Circle(App.Vector(351, -74, 0), App.Vector(0, 0, 1), 18.5), math.radians(0), math.radians(90)),  # 31
    Part.LineSegment(App.Vector(351, -55.5, 0), App.Vector(-363.8, -55.5, 0)),  # 32
    Part.ArcOfCircle(Part.Circle(App.Vector(-363.8, -74, 0), App.Vector(0, 0, 1), 18.5), math.radians(90), math.radians(180)),  # 33
    Part.LineSegment(App.Vector(-382.2, -74, 0), App.Vector(-382.2, -118.8, 0)),  # 34
    Part.ArcOfCircle(Part.Circle(App.Vector(-363.8, -118.8, 0), App.Vector(0, 0, 1), 18.5), math.radians(180), math.radians(270)),  # 35
    Part.LineSegment(App.Vector(-363.8, -137.2, 0), App.Vector(363.8, -137.2, 0)),  # 36
    Part.ArcOfCircle(Part.Circle(App.Vector(363.8, -118.8, 0), App.Vector(0, 0, 1), 18.5), math.radians(-90), math.radians(0)),  # 37
    Part.LineSegment(App.Vector(382.2, -118.8, 0), App.Vector(382.2, -50.9, 0)),  # 38
    Part.ArcOfCircle(Part.Circle(App.Vector(363.8, -50.9, 0), App.Vector(0, 0, 1), 18.5), math.radians(0), math.radians(90)),  # 39
    Part.LineSegment(App.Vector(363.8, -32.4, 0), App.Vector(-376.5, -32.4, 0)),  # 40
    Part.ArcOfCircle(Part.Circle(App.Vector(-376.5, -50.9, 0), App.Vector(0, 0, 1), 18.5), math.radians(90), math.radians(180)),  # 41
    Part.LineSegment(App.Vector(-395, -50.9, 0), App.Vector(-395, -131.5, 0)),  # 42
    Part.ArcOfCircle(Part.Circle(App.Vector(-376.5, -131.5, 0), App.Vector(0, 0, 1), 18.5), math.radians(180), math.radians(270)),  # 43
    Part.LineSegment(App.Vector(-376.5, -150, 0), App.Vector(376.5, -150, 0)),  # 44
    Part.ArcOfCircle(Part.Circle(App.Vector(376.5, -131.5, 0), App.Vector(0, 0, 1), 18.5), math.radians(-90), math.radians(0)),  # 45
    Part.LineSegment(App.Vector(395, -131.5, 0), App.Vector(395, -27.8, 0)),  # 46
    Part.ArcOfCircle(Part.Circle(App.Vector(376.5, -27.8, 0), App.Vector(0, 0, 1), 18.5), math.radians(0), math.radians(90)),  # 47
], False)
sketch3.addConstraint([
    Sketcher.Constraint("Coincident", 0, 2, 1, 1),
    Sketcher.Constraint("Coincident", 1, 2, 2, 1),
    Sketcher.Constraint("Tangent", 2, 2, 3, 2),
    Sketcher.Constraint("Tangent", 3, 1, 4, 1),
    Sketcher.Constraint("Tangent", 4, 2, 5, 2),
    Sketcher.Constraint("Tangent", 5, 1, 6, 1),
    Sketcher.Constraint("Tangent", 6, 2, 7, 2),
    Sketcher.Constraint("Tangent", 7, 1, 8, 1),
    Sketcher.Constraint("Tangent", 8, 2, 9, 2),
    Sketcher.Constraint("Tangent", 9, 1, 10, 1),
    Sketcher.Constraint("Tangent", 10, 2, 11, 2),
    Sketcher.Constraint("Tangent", 11, 1, 12, 1),
    Sketcher.Constraint("Tangent", 12, 2, 13, 2),
    Sketcher.Constraint("Tangent", 13, 1, 14, 1),
    Sketcher.Constraint("Tangent", 14, 2, 15, 2),
    Sketcher.Constraint("Tangent", 15, 1, 16, 1),
    Sketcher.Constraint("Tangent", 16, 2, 17, 2),
    Sketcher.Constraint("Tangent", 17, 1, 18, 1),
    Sketcher.Constraint("Tangent", 18, 2, 19, 2),
    Sketcher.Constraint("Tangent", 19, 1, 20, 1),
    Sketcher.Constraint("Tangent", 20, 2, 21, 2),
    Sketcher.Constraint("Tangent", 21, 1, 22, 1),
    Sketcher.Constraint("Tangent", 22, 2, 23, 2),
    Sketcher.Constraint("Tangent", 23, 1, 24, 1),
    Sketcher.Constraint("Coincident", 24, 2, 25, 1),
    Sketcher.Constraint("Coincident", 25, 2, 26, 1),
    Sketcher.Constraint("Tangent", 26, 2, 27, 1),
    Sketcher.Constraint("Tangent", 27, 2, 28, 1),
    Sketcher.Constraint("Tangent", 28, 2, 29, 1),
    Sketcher.Constraint("Tangent", 29, 2, 30, 1),
    Sketcher.Constraint("Tangent", 30, 2, 31, 1),
    Sketcher.Constraint("Tangent", 31, 2, 32, 1),
    Sketcher.Constraint("Tangent", 32, 2, 33, 1),
    Sketcher.Constraint("Tangent", 33, 2, 34, 1),
    Sketcher.Constraint("Tangent", 34, 2, 35, 1),
    Sketcher.Constraint("Tangent", 35, 2, 36, 1),
    Sketcher.Constraint("Tangent", 36, 2, 37, 1),
    Sketcher.Constraint("Tangent", 37, 2, 38, 1),
    Sketcher.Constraint("Tangent", 38, 2, 39, 1),
    Sketcher.Constraint("Tangent", 39, 2, 40, 1),
    Sketcher.Constraint("Tangent", 40, 2, 41, 1),
    Sketcher.Constraint("Tangent", 41, 2, 42, 1),
    Sketcher.Constraint("Tangent", 42, 2, 43, 1),
    Sketcher.Constraint("Tangent", 43, 2, 44, 1),
    Sketcher.Constraint("Tangent", 44, 2, 45, 1),
    Sketcher.Constraint("Tangent", 45, 2, 46, 1),
    Sketcher.Constraint("Tangent", 46, 2, 47, 1),
    Sketcher.Constraint("Tangent", 47, 2, 0, 1),
    Sketcher.Constraint("Horizontal", 0),
    Sketcher.Constraint("Vertical", 1),
    Sketcher.Constraint("Horizontal", 2),
    Sketcher.Constraint("Vertical", 4),
    Sketcher.Constraint("Horizontal", 6),
    Sketcher.Constraint("Vertical", 8),
    Sketcher.Constraint("Horizontal", 10),
    Sketcher.Constraint("Vertical", 12),
    Sketcher.Constraint("Horizontal", 14),
    Sketcher.Constraint("Vertical", 16),
    Sketcher.Constraint("Horizontal", 18),
    Sketcher.Constraint("Vertical", 20),
    Sketcher.Constraint("Horizontal", 22),
    Sketcher.Constraint("Vertical", 24),
    Sketcher.Constraint("Horizontal", 25),
    Sketcher.Constraint("Vertical", 26),
    Sketcher.Constraint("Horizontal", 28),
    Sketcher.Constraint("Vertical", 30),
    Sketcher.Constraint("Horizontal", 32),
    Sketcher.Constraint("Vertical", 34),
    Sketcher.Constraint("Horizontal", 36),
    Sketcher.Constraint("Vertical", 38),
    Sketcher.Constraint("Horizontal", 40),
    Sketcher.Constraint("Vertical", 42),
    Sketcher.Constraint("Horizontal", 44),
    Sketcher.Constraint("Vertical", 46),
    Sketcher.Constraint("Equal", 3, 5),
    Sketcher.Constraint("Equal", 5, 7),
    Sketcher.Constraint("Equal", 7, 9),
    Sketcher.Constraint("Equal", 9, 11),
    Sketcher.Constraint("Equal", 11, 13),
    Sketcher.Constraint("Equal", 13, 15),
    Sketcher.Constraint("Equal", 15, 17),
    Sketcher.Constraint("Equal", 17, 19),
    Sketcher.Constraint("Equal", 19, 21),
    Sketcher.Constraint("Equal", 21, 23),
    Sketcher.Constraint("Equal", 27, 29),
    Sketcher.Constraint("Equal", 29, 31),
    Sketcher.Constraint("Equal", 31, 33),
    Sketcher.Constraint("Equal", 33, 35),
    Sketcher.Constraint("Equal", 35, 37),
    Sketcher.Constraint("Equal", 37, 39),
    Sketcher.Constraint("Equal", 39, 41),
    Sketcher.Constraint("Equal", 41, 43),
    Sketcher.Constraint("Equal", 43, 45),
    Sketcher.Constraint("Equal", 45, 47),
    Sketcher.Constraint("PointOnObject", 0, 2, -2),
    Sketcher.Constraint("Equal", 25, 1),
    Sketcher.Constraint("Radius", 3, 15.0),
    Sketcher.Constraint("Radius", 27, 18.5),
    Sketcher.Constraint("DistanceX", 25, 2, 25, 1, 4.5),
    Sketcher.Constraint("DistanceX", 41, 2, -1, 1, 395.0),
    Sketcher.Constraint("DistanceY", 43, 2, -1, 1, 150.0),
    Sketcher.Constraint("DistanceX", -1, 1, 45, 2, 395.0),
    Sketcher.Constraint("DistanceY", 0, 2, -1, 1, 9.3),
    Sketcher.Constraint("DistanceX", 6, 2, 6, 1, 751.0),
    Sketcher.Constraint("DistanceX", 22, 2, 22, 1, 700.0),
    Sketcher.Constraint("DistanceX", 28, 1, 28, 2, 702.0),
    Sketcher.Constraint("DistanceY", 20, 2, 20, 1, 30.0),
    Sketcher.Constraint("DistanceY", 30, 1, 30, 2, 32.0),
    Sketcher.Constraint("DistanceX", 2, 1, 2, 2, 375.5),
    Sketcher.Constraint("DistanceX", 14, 2, 14, 1, 725.5),
    Sketcher.Constraint("DistanceX", 36, 1, 36, 2, 727.5),
    Sketcher.Constraint("DistanceY", 4, 2, 4, 1, 101.7),
    Sketcher.Constraint("DistanceY", 8, 1, 8, 2, 78.6),
    Sketcher.Constraint("DistanceY", 42, 2, 42, 1, 80.6),
    Sketcher.Constraint("DistanceY", 17, 3, -1, 1, 75.0),
    Sketcher.Constraint("DistanceX", -1, 1, 19, 3, 350.0),
    Sketcher.Constraint("DistanceY", 27, 3, -1, 1, 106.0),
    Sketcher.Constraint("DistanceX", 10, 1, 10, 2, 738.25),
    Sketcher.Constraint("DistanceX", 32, 2, 32, 1, 714.75),
    Sketcher.Constraint("DistanceY", 12, 2, 12, 1, 65.85),
    Sketcher.Constraint("DistanceY", 34, 2, 34, 1, 44.75),
    Sketcher.Constraint("DistanceY", 24, 1, 24, 2, 33.2437),
])
pocket2 = body.newObject("PartDesign::Pocket", "Pocket001")
pocket2.Profile = sketch3
pocket2.Length = 4.5
pocket2.Reversed = True

doc.recompute()
